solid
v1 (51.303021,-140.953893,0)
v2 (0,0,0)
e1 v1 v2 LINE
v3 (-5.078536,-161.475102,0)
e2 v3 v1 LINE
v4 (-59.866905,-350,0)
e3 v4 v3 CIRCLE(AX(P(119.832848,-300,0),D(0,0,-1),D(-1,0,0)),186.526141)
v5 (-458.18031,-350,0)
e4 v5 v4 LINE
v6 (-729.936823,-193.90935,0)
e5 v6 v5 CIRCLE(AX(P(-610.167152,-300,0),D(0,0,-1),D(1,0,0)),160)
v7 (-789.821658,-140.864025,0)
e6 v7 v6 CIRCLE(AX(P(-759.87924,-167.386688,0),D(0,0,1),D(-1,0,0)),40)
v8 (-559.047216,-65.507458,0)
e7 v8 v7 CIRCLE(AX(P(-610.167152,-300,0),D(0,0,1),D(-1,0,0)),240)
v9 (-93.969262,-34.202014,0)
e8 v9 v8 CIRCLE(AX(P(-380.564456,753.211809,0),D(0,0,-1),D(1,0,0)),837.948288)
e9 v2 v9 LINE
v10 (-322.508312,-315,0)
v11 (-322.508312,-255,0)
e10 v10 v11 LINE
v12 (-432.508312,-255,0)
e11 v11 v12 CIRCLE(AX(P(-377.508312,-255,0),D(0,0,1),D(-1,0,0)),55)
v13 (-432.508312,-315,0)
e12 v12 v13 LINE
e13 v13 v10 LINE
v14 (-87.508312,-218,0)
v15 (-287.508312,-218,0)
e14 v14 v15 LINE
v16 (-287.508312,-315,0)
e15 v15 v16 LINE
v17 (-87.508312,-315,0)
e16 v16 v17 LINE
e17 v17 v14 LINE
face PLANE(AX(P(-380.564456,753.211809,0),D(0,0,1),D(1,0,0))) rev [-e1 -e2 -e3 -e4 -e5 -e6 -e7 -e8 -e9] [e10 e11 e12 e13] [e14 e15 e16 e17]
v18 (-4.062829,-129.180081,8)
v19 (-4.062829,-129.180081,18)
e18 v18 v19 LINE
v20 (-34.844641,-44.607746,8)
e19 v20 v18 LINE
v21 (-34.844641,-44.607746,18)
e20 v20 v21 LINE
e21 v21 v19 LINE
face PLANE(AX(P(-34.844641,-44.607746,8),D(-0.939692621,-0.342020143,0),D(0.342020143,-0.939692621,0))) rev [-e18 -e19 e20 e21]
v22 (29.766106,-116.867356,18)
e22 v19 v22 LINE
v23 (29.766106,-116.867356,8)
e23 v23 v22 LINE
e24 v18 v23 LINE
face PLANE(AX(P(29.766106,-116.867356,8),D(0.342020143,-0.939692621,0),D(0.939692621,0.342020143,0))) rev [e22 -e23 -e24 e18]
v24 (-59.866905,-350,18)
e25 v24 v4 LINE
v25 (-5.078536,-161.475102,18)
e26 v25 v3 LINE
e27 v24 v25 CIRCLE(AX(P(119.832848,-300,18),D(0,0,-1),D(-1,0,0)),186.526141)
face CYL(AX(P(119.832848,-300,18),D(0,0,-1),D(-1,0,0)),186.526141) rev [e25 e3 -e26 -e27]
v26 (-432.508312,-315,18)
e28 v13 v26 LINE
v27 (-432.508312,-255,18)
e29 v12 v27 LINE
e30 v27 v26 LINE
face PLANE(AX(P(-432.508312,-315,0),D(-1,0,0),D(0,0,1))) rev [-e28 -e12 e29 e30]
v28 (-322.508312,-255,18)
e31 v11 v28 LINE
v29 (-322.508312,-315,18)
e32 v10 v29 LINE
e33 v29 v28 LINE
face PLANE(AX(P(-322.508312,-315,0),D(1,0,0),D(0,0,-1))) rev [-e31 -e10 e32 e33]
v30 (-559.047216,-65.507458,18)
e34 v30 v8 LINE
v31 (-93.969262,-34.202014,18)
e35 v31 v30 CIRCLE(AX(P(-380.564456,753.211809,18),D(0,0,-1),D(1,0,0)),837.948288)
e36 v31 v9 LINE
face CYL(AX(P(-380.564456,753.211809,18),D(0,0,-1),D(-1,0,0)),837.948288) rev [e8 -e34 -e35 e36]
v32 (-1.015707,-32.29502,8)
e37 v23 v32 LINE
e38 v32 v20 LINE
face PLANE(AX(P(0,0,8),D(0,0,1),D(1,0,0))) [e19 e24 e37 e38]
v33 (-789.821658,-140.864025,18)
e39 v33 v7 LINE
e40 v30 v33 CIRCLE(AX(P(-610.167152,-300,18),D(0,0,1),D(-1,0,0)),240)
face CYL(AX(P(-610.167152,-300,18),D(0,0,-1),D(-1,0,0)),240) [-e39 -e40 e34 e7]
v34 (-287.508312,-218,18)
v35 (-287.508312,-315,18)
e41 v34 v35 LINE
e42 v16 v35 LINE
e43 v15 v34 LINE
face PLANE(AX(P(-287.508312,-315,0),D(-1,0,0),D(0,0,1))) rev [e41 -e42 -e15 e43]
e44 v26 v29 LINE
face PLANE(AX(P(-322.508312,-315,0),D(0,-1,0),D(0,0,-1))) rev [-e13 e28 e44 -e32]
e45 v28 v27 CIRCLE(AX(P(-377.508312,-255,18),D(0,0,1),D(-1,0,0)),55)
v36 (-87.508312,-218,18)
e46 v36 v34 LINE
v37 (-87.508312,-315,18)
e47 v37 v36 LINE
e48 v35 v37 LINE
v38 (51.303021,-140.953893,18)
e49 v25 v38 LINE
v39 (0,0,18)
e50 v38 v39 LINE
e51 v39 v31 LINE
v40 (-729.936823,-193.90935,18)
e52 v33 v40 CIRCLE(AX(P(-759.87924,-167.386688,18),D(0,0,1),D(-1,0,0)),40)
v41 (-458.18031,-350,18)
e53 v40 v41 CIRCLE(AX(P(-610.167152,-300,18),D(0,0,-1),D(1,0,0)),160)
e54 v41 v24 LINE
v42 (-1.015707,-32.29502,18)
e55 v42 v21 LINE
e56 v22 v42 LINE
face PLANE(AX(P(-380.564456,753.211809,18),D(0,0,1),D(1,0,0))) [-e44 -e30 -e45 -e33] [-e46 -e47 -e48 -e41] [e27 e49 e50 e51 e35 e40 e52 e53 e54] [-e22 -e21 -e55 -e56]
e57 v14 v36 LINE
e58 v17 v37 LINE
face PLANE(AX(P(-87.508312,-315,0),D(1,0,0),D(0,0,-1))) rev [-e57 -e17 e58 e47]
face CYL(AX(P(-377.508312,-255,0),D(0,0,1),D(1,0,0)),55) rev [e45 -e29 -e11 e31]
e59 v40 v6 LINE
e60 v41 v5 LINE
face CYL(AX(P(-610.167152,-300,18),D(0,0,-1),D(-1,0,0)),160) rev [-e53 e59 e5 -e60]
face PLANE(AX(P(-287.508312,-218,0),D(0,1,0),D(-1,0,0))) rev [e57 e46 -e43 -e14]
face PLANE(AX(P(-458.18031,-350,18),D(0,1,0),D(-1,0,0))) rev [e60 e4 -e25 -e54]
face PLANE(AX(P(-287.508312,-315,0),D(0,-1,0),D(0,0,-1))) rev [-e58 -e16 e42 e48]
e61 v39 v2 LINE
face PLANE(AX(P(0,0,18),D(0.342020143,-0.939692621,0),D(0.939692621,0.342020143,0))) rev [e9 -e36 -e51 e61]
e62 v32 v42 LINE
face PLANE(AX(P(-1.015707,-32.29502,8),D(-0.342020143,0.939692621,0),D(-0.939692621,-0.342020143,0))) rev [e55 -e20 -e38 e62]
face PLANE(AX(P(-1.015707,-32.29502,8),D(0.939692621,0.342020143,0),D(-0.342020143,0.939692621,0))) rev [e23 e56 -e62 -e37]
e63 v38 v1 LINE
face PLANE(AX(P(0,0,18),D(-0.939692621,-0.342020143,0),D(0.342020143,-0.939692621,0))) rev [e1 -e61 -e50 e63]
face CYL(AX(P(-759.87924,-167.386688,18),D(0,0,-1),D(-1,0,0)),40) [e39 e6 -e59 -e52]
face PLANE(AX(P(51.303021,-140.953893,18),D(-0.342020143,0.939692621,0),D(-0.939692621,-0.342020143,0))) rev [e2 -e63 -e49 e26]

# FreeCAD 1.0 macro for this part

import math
import FreeCAD as App
import Part
import Sketcher

V = App.Vector
Q = App.Units.Quantity

doc = App.newDocument("Part")
body = doc.addObject("PartDesign::Body", "Body")

# Sketch on XY plane
sketch1 = body.newObject("Sketcher::SketchObject", "Sketch")
sketch1.AttachmentSupport = (doc.getObject("XY_Plane"), [""])
sketch1.MapMode = "FlatFace"
sketch1.addGeometry([
    Part.LineSegment(V(51, -141, 0), V(0, 0, 0)),  # 0
    Part.LineSegment(V(0, 0, 0), V(-94, -34, 0)),  # 1
    Part.ArcOfCircle(Part.Circle(V(-381, 753, 0), V(0, 0, 1), 838), math.radians(-102), math.radians(-70)),  # 2
    Part.ArcOfCircle(Part.Circle(V(-610, -300, 0), V(0, 0, 1), 240), math.radians(78), math.radians(138)),  # 3
    Part.ArcOfCircle(Part.Circle(V(-760, -167, 0), V(0, 0, 1), 40), math.radians(138), math.radians(318)),  # 4
    Part.ArcOfCircle(Part.Circle(V(-610, -300, 0), V(0, 0, 1), 160), math.radians(-18), math.radians(138)),  # 5
    Part.LineSegment(V(-458, -350, 0), V(-60, -350, 0)),  # 6
    Part.ArcOfCircle(Part.Circle(V(120, -300, 0), V(0, 0, 1), 187), math.radians(132), math.radians(196)),  # 7
    Part.LineSegment(V(-5, -161, 0), V(51, -141, 0)),  # 8
], False)
sketch1.addConstraint([
    Sketcher.Constraint("Coincident", 0, 2, 1, 1),
    Sketcher.Constraint("Tangent", 1, 2, 2, 2),
    Sketcher.Constraint("Tangent", 2, 1, 3, 1),
    Sketcher.Constraint("Tangent", 3, 2, 4, 1),
    Sketcher.Constraint("Tangent", 4, 2, 5, 2),
    Sketcher.Constraint("Coincident", 5, 1, 6, 1),
    Sketcher.Constraint("Coincident", 6, 2, 7, 2),
    Sketcher.Constraint("Coincident", 7, 1, 8, 1),
    Sketcher.Constraint("Coincident", 8, 2, 0, 1),
    Sketcher.Constraint("Horizontal", 6),
    Sketcher.Constraint("Coincident", 0, 2, -1, 1),
    Sketcher.Constraint("Coincident", 5, 3, 3, 3),
    Sketcher.Constraint("Perpendicular", 0, 1),
    Sketcher.Constraint("Parallel", 1, 8),
    Sketcher.Constraint("Horizontal", 5, 3, 7, 3),
    Sketcher.Constraint("Radius", 3, 240.0),
    Sketcher.Constraint("Radius", 4, 40.0),
    Sketcher.Constraint("Angle", 0, Q("110 deg")),
    Sketcher.Constraint("Distance", 0, 150.0),
    Sketcher.Constraint("Distance", 1, 100.0),
    Sketcher.Constraint("Distance", 8, 60.0),
    Sketcher.Constraint("DistanceY", 3, 3, -1, 1, 300.0),
    Sketcher.Constraint("DistanceY", 5, 1, -1, 1, 350.0),
    Sketcher.Constraint("DistanceX", 3, 3, 7, 3, 730.0),
    Sketcher.Constraint("Radius", 2, 837.948288),
    Sketcher.Constraint("DistanceX", 4, 3, -1, 1, 759.87924),
])
pad1 = body.newObject("PartDesign::Pad", "Pad")
pad1.Profile = sketch1
pad1.Length = 18

# Sketch on XY plane
sketch2 = body.newObject("Sketcher::SketchObject", "Sketch001")
sketch2.AttachmentSupport = (doc.getObject("XY_Plane"), [""])
sketch2.MapMode = "FlatFace"
sketch2.AttachmentOffset = App.Placement(V(0, 0, 18), App.Rotation())
sketch2.addGeometry([
    Part.LineSegment(V(-288, -218, 0), V(-288, -315, 0)),  # 0
    Part.LineSegment(V(-288, -315, 0), V(-88, -315, 0)),  # 1
    Part.LineSegment(V(-88, -315, 0), V(-88, -218, 0)),  # 2
    Part.LineSegment(V(-88, -218, 0), V(-288, -218, 0)),  # 3
    Part.LineSegment(V(-433, -315, 0), V(-323, -315, 0)),  # 4
    Part.LineSegment(V(-323, -315, 0), V(-323, -255, 0)),  # 5
    Part.ArcOfCircle(Part.Circle(V(-378, -255, 0), V(0, 0, 1), 55), math.radians(0), math.radians(180)),  # 6
    Part.LineSegment(V(-433, -255, 0), V(-433, -315, 0)),  # 7
], False)
sketch2.addConstraint([
    Sketcher.Constraint("Coincident", 0, 2, 1, 1),
    Sketcher.Constraint("Coincident", 1, 2, 2, 1),
    Sketcher.Constraint("Coincident", 2, 2, 3, 1),
    Sketcher.Constraint("Coincident", 3, 2, 0, 1),
    Sketcher.Constraint("Coincident", 4, 2, 5, 1),
    Sketcher.Constraint("Tangent", 5, 2, 6, 1),
    Sketcher.Constraint("Tangent", 6, 2, 7, 1),
    Sketcher.Constraint("Coincident", 7, 2, 4, 1),
    Sketcher.Constraint("Vertical", 0),
    Sketcher.Constraint("Horizontal", 1),
    Sketcher.Constraint("Vertical", 2),
    Sketcher.Constraint("Horizontal", 3),
    Sketcher.Constraint("Horizontal", 4),
    Sketcher.Constraint("Vertical", 5),
    Sketcher.Constraint("Vertical", 7),
    Sketcher.Constraint("Horizontal", 1, 2, 4, 2),
    Sketcher.Constraint("Radius", 6, 55.0),
    Sketcher.Constraint("DistanceX", 1, 1, 1, 2, 200.0),
    Sketcher.Constraint("DistanceY", 0, 2, 0, 1, 97.0),
    Sketcher.Constraint("DistanceY", 5, 1, 5, 2, 60.0),
    Sketcher.Constraint("DistanceY", 6, 3, -1, 1, 255.0),
    Sketcher.Constraint("DistanceX", 6, 3, 0, 2, 90.0),
    Sketcher.Constraint("DistanceX", 6, 3, -1, 1, 377.508312),
])
pocket1 = body.newObject("PartDesign::Pocket", "Pocket")
pocket1.Profile = sketch2
pocket1.Type = "ThroughAll"

# Sketch on XY plane
sketch3 = body.newObject("Sketcher::SketchObject", "Sketch002")
sketch3.AttachmentSupport = (doc.getObject("XY_Plane"), [""])
sketch3.MapMode = "FlatFace"
sketch3.AttachmentOffset = App.Placement(V(0, 0, 18), App.Rotation())
sketch3.addGeometry([
    Part.LineSegment(V(30, -117, 0), V(-1, -32, 0)),
    Part.LineSegment(V(-1, -32, 0), V(-35, -45, 0)),
    Part.LineSegment(V(-35, -45, 0), V(-4, -129, 0)),
    Part.LineSegment(V(-4, -129, 0), V(30, -117, 0)),
], False)
sketch3.addConstraint([
    Sketcher.Constraint("Coincident", 0, 2, 1, 1),
    Sketcher.Constraint("Coincident", 1, 2, 2, 1),
    Sketcher.Constraint("Coincident", 2, 2, 3, 1),
    Sketcher.Constraint("Coincident", 3, 2, 0, 1),
    Sketcher.Constraint("Perpendicular", 0, 1),
    Sketcher.Constraint("Perpendicular", 1, 2),
    Sketcher.Constraint("Perpendicular", 2, 3),
    Sketcher.Constraint("Angle", 0, Q("110 deg")),
    Sketcher.Constraint("Distance", 0, 90.0),
    Sketcher.Constraint("Distance", 1, 36.0),
    Sketcher.Constraint("DistanceY", 0, 2, -1, 1, 32.29502),
    Sketcher.Constraint("DistanceX", 1, 2, -1, 1, 34.844641),
])
pocket2 = body.newObject("PartDesign::Pocket", "Pocket001")
pocket2.Profile = sketch3
pocket2.Length = 10

doc.recompute()
